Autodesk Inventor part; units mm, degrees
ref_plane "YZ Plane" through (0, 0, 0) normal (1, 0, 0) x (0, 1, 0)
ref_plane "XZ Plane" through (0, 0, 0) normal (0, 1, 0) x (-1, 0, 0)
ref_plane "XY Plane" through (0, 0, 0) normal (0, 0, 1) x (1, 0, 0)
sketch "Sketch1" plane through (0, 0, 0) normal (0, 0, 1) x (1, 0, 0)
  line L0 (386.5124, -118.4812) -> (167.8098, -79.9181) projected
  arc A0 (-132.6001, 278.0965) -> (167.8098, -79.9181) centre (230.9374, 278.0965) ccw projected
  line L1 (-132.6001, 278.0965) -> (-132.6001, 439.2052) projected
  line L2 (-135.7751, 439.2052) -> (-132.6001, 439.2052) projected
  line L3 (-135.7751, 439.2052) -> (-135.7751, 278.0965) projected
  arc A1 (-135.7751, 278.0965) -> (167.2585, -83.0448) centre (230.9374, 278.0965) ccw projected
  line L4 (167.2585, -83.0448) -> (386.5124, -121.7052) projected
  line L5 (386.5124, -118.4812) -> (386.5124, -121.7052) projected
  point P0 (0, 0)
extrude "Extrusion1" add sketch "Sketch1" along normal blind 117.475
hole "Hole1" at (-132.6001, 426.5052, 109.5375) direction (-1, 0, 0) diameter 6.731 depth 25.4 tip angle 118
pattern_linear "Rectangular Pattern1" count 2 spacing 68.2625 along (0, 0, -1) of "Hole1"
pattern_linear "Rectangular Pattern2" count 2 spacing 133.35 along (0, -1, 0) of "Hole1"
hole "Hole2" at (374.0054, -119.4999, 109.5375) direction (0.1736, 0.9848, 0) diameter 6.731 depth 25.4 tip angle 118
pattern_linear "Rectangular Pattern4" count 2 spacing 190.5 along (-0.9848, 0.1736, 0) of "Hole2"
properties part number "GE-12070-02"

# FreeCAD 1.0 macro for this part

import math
import FreeCAD as App
import Part
import Sketcher
Q = App.Units.Quantity

doc = App.newDocument("Part")
body = doc.addObject("PartDesign::Body", "Body")

# Sketch on XY plane
sketch1 = body.newObject("Sketcher::SketchObject", "Sketch")
sketch1.AttachmentSupport = (doc.getObject("XY_Plane"), [""])
sketch1.MapMode = "FlatFace"
sketch1.addGeometry([
    Part.LineSegment(App.Vector(386.5, -121.7, 0), App.Vector(386.5, -118.5, 0)),  # 0
    Part.LineSegment(App.Vector(386.5, -118.5, 0), App.Vector(167.8, -79.9, 0)),  # 1
    Part.ArcOfCircle(Part.Circle(App.Vector(230.9, 278.1, 0), App.Vector(0, 0, 1), 363.5), math.radians(180), math.radians(260)),  # 2
    Part.LineSegment(App.Vector(-132.6, 278.1, 0), App.Vector(-132.6, 439.2, 0)),  # 3
    Part.LineSegment(App.Vector(-132.6, 439.2, 0), App.Vector(-135.8, 439.2, 0)),  # 4
    Part.LineSegment(App.Vector(-135.8, 439.2, 0), App.Vector(-135.8, 278.1, 0)),  # 5
    Part.ArcOfCircle(Part.Circle(App.Vector(230.9, 278.1, 0), App.Vector(0, 0, 1), 366.7), math.radians(180), math.radians(260)),  # 6
    Part.LineSegment(App.Vector(167.3, -83, 0), App.Vector(386.5, -121.7, 0)),  # 7
], False)
sketch1.addConstraint([
    Sketcher.Constraint("Coincident", 0, 2, 1, 1),
    Sketcher.Constraint("Tangent", 1, 2, 2, 2),
    Sketcher.Constraint("Tangent", 2, 1, 3, 1),
    Sketcher.Constraint("Coincident", 3, 2, 4, 1),
    Sketcher.Constraint("Coincident", 4, 2, 5, 1),
    Sketcher.Constraint("Tangent", 5, 2, 6, 1),
    Sketcher.Constraint("Tangent", 6, 2, 7, 1),
    Sketcher.Constraint("Coincident", 7, 2, 0, 1),
    Sketcher.Constraint("Vertical", 0),
    Sketcher.Constraint("Vertical", 3),
    Sketcher.Constraint("Horizontal", 4),
    Sketcher.Constraint("Vertical", 5),
    Sketcher.Constraint("Coincident", 6, 3, 2, 3),
    Sketcher.Constraint("Parallel", 1, 7),
    Sketcher.Constraint("Angle", 1, Q("170 deg")),
    Sketcher.Constraint("Radius", 2, Q("14.3125 in")),
    Sketcher.Constraint("Radius", 6, Q("14.4375 in")),
    Sketcher.Constraint("DistanceX", 2, 3, 0, 2, Q("6.125 in")),
    Sketcher.Constraint("DistanceY", 3, 1, 3, 2, Q("161.1087 mm")),
    Sketcher.Constraint("DistanceX", -1, 1, 2, 3, Q("230.9374 mm")),
    Sketcher.Constraint("DistanceY", -1, 1, 2, 3, Q("278.0965 mm")),
])
pad1 = body.newObject("PartDesign::Pad", "Pad")
pad1.Profile = sketch1
pad1.Length = Q("4.625 in")

# Sketch on YZ plane
sketch2 = body.newObject("Sketcher::SketchObject", "Sketch001")
sketch2.AttachmentSupport = (doc.getObject("YZ_Plane"), [""])
sketch2.MapMode = "FlatFace"
sketch2.AttachmentOffset = App.Placement(App.Vector(0, 0, -132.6001), App.Rotation())
sketch2.addGeometry(Part.Circle(App.Vector(426.5, 109.5, 0), App.Vector(0, 0, 1), 3.4), False)
sketch2.addConstraint([
    Sketcher.Constraint("Diameter", 0, Q("0.265 in")),
    Sketcher.Constraint("DistanceY", -1, 1, 0, 3, Q("4.3125 in")),
    Sketcher.Constraint("DistanceX", -1, 1, 0, 3, Q("426.5052 mm")),
])
doc.recompute()
hole = body.newObject("PartDesign::Hole", "Hole")
hole.Profile = sketch2
hole.ThreadType = "None"
hole.Diameter = Q("0.265 in")
hole.DepthType = "Dimension"
hole.Depth = Q("1 in")
hole.DrillPoint = "Angled"
hole.DrillPointAngle = 118
doc.recompute()

linearpattern = body.newObject("PartDesign::LinearPattern", "LinearPattern")
linearpattern.Originals = [hole]
linearpattern.Direction = (doc.getObject("Z_Axis"), [""])
linearpattern.Mode = "offset"
linearpattern.Offset = Q("2.6875 in")
linearpattern.Occurrences = 2
linearpattern.Reversed = True
body.Tip = linearpattern
doc.recompute()

linearpattern2 = body.newObject("PartDesign::LinearPattern", "LinearPattern001")
linearpattern2.Originals = [hole]
linearpattern2.Direction = (doc.getObject("Y_Axis"), [""])
linearpattern2.Mode = "offset"
linearpattern2.Offset = Q("5.25 in")
linearpattern2.Occurrences = 2
linearpattern2.Reversed = True
body.Tip = linearpattern2

# Sketch on an angled plane
sketch3 = body.newObject("Sketcher::SketchObject", "Sketch002")
sketch3.Placement = App.Placement(App.Vector(-9.158044, -51.937847, 0), App.Rotation(App.Vector(0.984807753, -0.173648178, 0), App.Vector(0, 0, 1), App.Vector(-0.173648178, -0.984807753, 0), "ZXY"))
sketch3.addGeometry(Part.Circle(App.Vector(389.1, 109.5, 0), App.Vector(0, 0, 1), 3.4), False)
sketch3.addConstraint([
    Sketcher.Constraint("Diameter", 0, Q("0.265 in")),
    Sketcher.Constraint("DistanceY", -1, 1, 0, 3, Q("4.3125 in")),
    Sketcher.Constraint("DistanceX", -1, 1, 0, 3, Q("15.3179 in")),
])
doc.recompute()
hole2 = body.newObject("PartDesign::Hole", "Hole001")
hole2.Profile = sketch3
hole2.ThreadType = "None"
hole2.Diameter = Q("0.265 in")
hole2.DepthType = "Dimension"
hole2.Depth = Q("1 in")
hole2.DrillPoint = "Angled"
hole2.DrillPointAngle = 118
doc.recompute()

datumline = body.newObject("PartDesign::Line", "DatumLine")
datumline.Placement = App.Placement(App.Vector(0, 0, 0), App.Rotation(App.Vector(0, 0, 1), App.Vector(-0.984807753, 0.173648178, 0)))
linearpattern3 = body.newObject("PartDesign::LinearPattern", "LinearPattern002")
linearpattern3.Originals = [hole2]
linearpattern3.Direction = (datumline, [""])
linearpattern3.Mode = "offset"
linearpattern3.Offset = Q("7.5 in")
linearpattern3.Occurrences = 2
body.Tip = linearpattern3

doc.recompute()
